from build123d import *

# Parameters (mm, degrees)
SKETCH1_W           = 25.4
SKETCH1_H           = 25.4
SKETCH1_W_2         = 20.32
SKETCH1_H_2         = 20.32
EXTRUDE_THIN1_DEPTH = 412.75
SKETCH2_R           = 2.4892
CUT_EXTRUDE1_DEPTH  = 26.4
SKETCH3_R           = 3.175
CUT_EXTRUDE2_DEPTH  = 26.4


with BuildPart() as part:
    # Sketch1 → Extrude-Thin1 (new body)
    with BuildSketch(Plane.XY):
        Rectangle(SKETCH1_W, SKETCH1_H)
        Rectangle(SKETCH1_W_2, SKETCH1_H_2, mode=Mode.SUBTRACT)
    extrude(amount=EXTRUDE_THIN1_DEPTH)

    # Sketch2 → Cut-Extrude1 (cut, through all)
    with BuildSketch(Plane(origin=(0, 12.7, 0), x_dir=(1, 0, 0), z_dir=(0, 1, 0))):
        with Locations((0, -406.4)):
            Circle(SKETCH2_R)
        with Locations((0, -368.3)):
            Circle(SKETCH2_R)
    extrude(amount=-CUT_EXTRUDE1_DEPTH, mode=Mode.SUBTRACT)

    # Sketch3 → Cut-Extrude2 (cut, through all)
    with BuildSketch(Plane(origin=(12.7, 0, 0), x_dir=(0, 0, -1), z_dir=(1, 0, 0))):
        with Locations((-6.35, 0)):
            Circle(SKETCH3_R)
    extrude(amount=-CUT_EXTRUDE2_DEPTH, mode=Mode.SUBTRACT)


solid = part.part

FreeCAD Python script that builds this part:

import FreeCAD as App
import Part
import Sketcher
Q = App.Units.Quantity

doc = App.newDocument("Part")
body = doc.addObject("PartDesign::Body", "Body")

sketch1 = body.newObject("Sketcher::SketchObject", "Sketch")
sketch1.AttachmentSupport = (doc.getObject("XY_Plane"), [""])
sketch1.MapMode = "FlatFace"
sketch1.addGeometry([
    Part.LineSegment(App.Vector(-13, 13, 0), App.Vector(-13, -13, 0)),
    Part.LineSegment(App.Vector(-13, -13, 0), App.Vector(13, -13, 0)),
    Part.LineSegment(App.Vector(13, -13, 0), App.Vector(13, 13, 0)),
    Part.LineSegment(App.Vector(13, 13, 0), App.Vector(-13, 13, 0)),
    Part.LineSegment(App.Vector(10, -10, 0), App.Vector(-10, -10, 0)),
    Part.LineSegment(App.Vector(-10, -10, 0), App.Vector(-10, 10, 0)),
    Part.LineSegment(App.Vector(-10, 10, 0), App.Vector(10, 10, 0)),
    Part.LineSegment(App.Vector(10, 10, 0), App.Vector(10, -10, 0)),
], False)
sketch1.addConstraint([
    Sketcher.Constraint("Coincident", 0, 2, 1, 1),
    Sketcher.Constraint("Coincident", 1, 2, 2, 1),
    Sketcher.Constraint("Coincident", 2, 2, 3, 1),
    Sketcher.Constraint("Coincident", 3, 2, 0, 1),
    Sketcher.Constraint("Coincident", 4, 2, 5, 1),
    Sketcher.Constraint("Coincident", 5, 2, 6, 1),
    Sketcher.Constraint("Coincident", 6, 2, 7, 1),
    Sketcher.Constraint("Coincident", 7, 2, 4, 1),
    Sketcher.Constraint("Vertical", 0),
    Sketcher.Constraint("Horizontal", 1),
    Sketcher.Constraint("Vertical", 2),
    Sketcher.Constraint("Horizontal", 3),
    Sketcher.Constraint("Horizontal", 4),
    Sketcher.Constraint("Vertical", 5),
    Sketcher.Constraint("Horizontal", 6),
    Sketcher.Constraint("Vertical", 7),
    Sketcher.Constraint("Symmetric", 0, 2, 2, 2, -1, 1),
    Sketcher.Constraint("Symmetric", 4, 2, 6, 2, -1, 1),
    Sketcher.Constraint("Equal", 3, 0),
    Sketcher.Constraint("Equal", 6, 5),
    Sketcher.Constraint("DistanceX", 1, 1, 1, 2, Q("1 in")),
    Sketcher.Constraint("DistanceX", 4, 2, 4, 1, Q("0.8 in")),
])
pad1 = body.newObject("PartDesign::Pad", "Pad")
pad1.Profile = sketch1
pad1.Length = Q("16.25 in")

sketch2 = body.newObject("Sketcher::SketchObject", "Sketch001")
sketch2.AttachmentSupport = (doc.getObject("XZ_Plane"), [""])
sketch2.MapMode = "FlatFace"
sketch2.AttachmentOffset = App.Placement(App.Vector(0, 0, -0.5 * 25.4), App.Rotation())
sketch2.addGeometry([
    Part.Circle(App.Vector(0, 406.4, 0), App.Vector(0, 0, 1), 2.5),
    Part.Circle(App.Vector(0, 368.3, 0), App.Vector(0, 0, 1), 2.5),
], False)
sketch2.addConstraint([
    Sketcher.Constraint("Equal", 0, 1),
    Sketcher.Constraint("PointOnObject", 0, 3, -2),
    Sketcher.Constraint("PointOnObject", 1, 3, -2),
    Sketcher.Constraint("Diameter", 0, Q("0.196 in")),
    Sketcher.Constraint("DistanceY", -1, 1, 0, 3, Q("16 in")),
    Sketcher.Constraint("DistanceY", -1, 1, 1, 3, Q("14.5 in")),
])
pocket1 = body.newObject("PartDesign::Pocket", "Pocket")
pocket1.Profile = sketch2
pocket1.Type = "ThroughAll"
pocket1.Reversed = True

sketch3 = body.newObject("Sketcher::SketchObject", "Sketch002")
sketch3.AttachmentSupport = (doc.getObject("YZ_Plane"), [""])
sketch3.MapMode = "FlatFace"
sketch3.AttachmentOffset = App.Placement(App.Vector(0, 0, 0.5 * 25.4), App.Rotation())
sketch3.addGeometry(Part.Circle(App.Vector(0, 6.3, 0), App.Vector(0, 0, 1), 3.2), False)
sketch3.addConstraint([
    Sketcher.Constraint("PointOnObject", 0, 3, -2),
    Sketcher.Constraint("Diameter", 0, Q("0.25 in")),
    Sketcher.Constraint("DistanceY", -1, 1, 0, 3, Q("0.25 in")),
])
pocket2 = body.newObject("PartDesign::Pocket", "Pocket001")
pocket2.Profile = sketch3
pocket2.Type = "ThroughAll"

doc.recompute()
